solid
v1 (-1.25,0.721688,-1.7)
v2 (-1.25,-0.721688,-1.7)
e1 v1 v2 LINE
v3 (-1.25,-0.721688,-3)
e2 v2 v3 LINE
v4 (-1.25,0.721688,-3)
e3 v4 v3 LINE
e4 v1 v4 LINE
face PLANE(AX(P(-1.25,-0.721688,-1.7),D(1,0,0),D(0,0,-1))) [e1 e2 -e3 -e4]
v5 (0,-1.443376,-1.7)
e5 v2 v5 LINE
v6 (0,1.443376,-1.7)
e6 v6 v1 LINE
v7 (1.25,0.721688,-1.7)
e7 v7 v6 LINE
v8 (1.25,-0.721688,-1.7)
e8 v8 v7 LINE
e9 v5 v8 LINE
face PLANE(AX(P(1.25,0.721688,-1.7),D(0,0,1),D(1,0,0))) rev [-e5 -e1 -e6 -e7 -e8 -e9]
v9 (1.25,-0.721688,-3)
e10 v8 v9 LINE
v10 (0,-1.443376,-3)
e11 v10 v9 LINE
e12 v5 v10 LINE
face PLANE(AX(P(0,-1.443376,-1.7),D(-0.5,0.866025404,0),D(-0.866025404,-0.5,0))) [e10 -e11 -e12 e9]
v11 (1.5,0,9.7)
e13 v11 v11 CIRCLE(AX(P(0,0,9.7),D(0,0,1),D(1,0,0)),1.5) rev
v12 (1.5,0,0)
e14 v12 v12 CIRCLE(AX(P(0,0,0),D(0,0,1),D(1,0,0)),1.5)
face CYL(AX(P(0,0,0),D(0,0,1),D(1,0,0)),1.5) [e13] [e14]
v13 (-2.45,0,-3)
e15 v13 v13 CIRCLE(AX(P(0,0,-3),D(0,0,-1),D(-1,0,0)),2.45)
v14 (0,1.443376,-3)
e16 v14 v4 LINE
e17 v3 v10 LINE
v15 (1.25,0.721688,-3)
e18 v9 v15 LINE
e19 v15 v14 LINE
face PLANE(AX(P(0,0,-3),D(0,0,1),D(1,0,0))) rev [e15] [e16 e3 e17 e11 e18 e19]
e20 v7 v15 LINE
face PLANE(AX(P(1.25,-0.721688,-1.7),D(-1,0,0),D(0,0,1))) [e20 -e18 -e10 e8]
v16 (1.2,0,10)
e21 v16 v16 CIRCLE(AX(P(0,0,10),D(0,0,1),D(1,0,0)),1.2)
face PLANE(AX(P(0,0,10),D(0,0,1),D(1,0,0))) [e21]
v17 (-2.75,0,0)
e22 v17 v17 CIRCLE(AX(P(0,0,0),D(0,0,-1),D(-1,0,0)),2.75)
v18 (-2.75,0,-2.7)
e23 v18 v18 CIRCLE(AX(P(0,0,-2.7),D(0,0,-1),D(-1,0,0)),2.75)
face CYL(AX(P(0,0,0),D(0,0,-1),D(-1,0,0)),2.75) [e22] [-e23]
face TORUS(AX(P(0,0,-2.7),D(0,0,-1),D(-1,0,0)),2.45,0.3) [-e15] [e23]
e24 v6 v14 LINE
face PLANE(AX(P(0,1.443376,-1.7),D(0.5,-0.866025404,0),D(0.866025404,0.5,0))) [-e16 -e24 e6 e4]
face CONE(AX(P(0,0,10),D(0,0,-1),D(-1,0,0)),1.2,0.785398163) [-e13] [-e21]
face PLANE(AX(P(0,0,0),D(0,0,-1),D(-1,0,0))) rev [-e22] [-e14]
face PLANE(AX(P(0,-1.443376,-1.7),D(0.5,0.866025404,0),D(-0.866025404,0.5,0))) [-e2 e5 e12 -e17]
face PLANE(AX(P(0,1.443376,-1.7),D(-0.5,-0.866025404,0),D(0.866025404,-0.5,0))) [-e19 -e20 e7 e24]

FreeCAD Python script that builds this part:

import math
import FreeCAD as App
import Part
import Sketcher

V = App.Vector
Q = App.Units.Quantity


def edges_at(feature, points):
    """Names of the edges that pass closest to the given points."""
    edges = feature.Shape.Edges
    near = lambda p: min(range(len(edges)), key=lambda i: edges[i].distToShape(Part.Vertex(*p))[0])
    return sorted({f"Edge{near(p) + 1}" for p in points})

doc = App.newDocument("Part")
body = doc.addObject("PartDesign::Body", "Body")

# Sketch on XZ plane
sketch1 = doc.addObject("Sketcher::SketchObject", "Sketch")
body.addObject(sketch1)
sketch1.AttachmentSupport = (doc.XZ_Plane, [""])
sketch1.MapMode = "FlatFace"
sketch1.addGeometry([
    Part.LineSegment(V(0, 0, 0), V(2.75, 0, 0)),  # 0
    Part.LineSegment(V(2.75, 0, 0), V(2.75, -2.7, 0)),  # 1
    Part.ArcOfCircle(Part.Circle(V(2.45, -2.7, 0), V(0, 0, 1), 0.3), math.radians(-90), math.radians(0)),  # 2
    Part.LineSegment(V(2.45, -3, 0), V(0, -3, 0)),  # 3
    Part.LineSegment(V(0, -3, 0), V(0, 0, 0)),  # 4
], False)
sketch1.addConstraint([
    Sketcher.Constraint("Coincident", 0, 2, 1, 1),
    Sketcher.Constraint("Tangent", 1, 2, 2, 2),
    Sketcher.Constraint("Tangent", 2, 1, 3, 1),
    Sketcher.Constraint("Coincident", 3, 2, 4, 1),
    Sketcher.Constraint("Coincident", 4, 2, 0, 1),
    Sketcher.Constraint("Horizontal", 0),
    Sketcher.Constraint("Vertical", 1),
    Sketcher.Constraint("Horizontal", 3),
    Sketcher.Constraint("Vertical", 4),
    Sketcher.Constraint("Coincident", 4, 2, -1, 1),
    Sketcher.Constraint("Radius", 2, Q("0.3 mm")),
    Sketcher.Constraint("DistanceY", 4, 1, 4, 2, Q("3 mm")),
    Sketcher.Constraint("DistanceX", 0, 1, 0, 2, Q("2.75 mm")),
])
revolution = doc.addObject("PartDesign::Revolution", "Revolution")
body.addObject(revolution)
revolution.Profile = sketch1
revolution.ReferenceAxis = (sketch1, ["V_Axis"])
revolution.Angle = 360

# Sketch on XY plane
sketch2 = doc.addObject("Sketcher::SketchObject", "Sketch001")
body.addObject(sketch2)
sketch2.AttachmentSupport = (doc.XY_Plane, [""])
sketch2.MapMode = "FlatFace"
sketch2.AttachmentOffset = App.Placement(V(0, 0, -3), App.Rotation())
sketch2.addGeometry([
    Part.LineSegment(V(1.2, -0.7, 0), V(1.2, 0.7, 0)),  # 0
    Part.LineSegment(V(1.2, 0.7, 0), V(0, 1.4, 0)),  # 1
    Part.LineSegment(V(0, 1.4, 0), V(-1.2, 0.7, 0)),  # 2
    Part.LineSegment(V(-1.2, 0.7, 0), V(-1.2, -0.7, 0)),  # 3
    Part.LineSegment(V(-1.2, -0.7, 0), V(0, -1.4, 0)),  # 4
    Part.LineSegment(V(0, -1.4, 0), V(1.2, -0.7, 0)),  # 5
], False)
sketch2.addConstraint([
    Sketcher.Constraint("Coincident", 0, 2, 1, 1),
    Sketcher.Constraint("Coincident", 1, 2, 2, 1),
    Sketcher.Constraint("Coincident", 2, 2, 3, 1),
    Sketcher.Constraint("Coincident", 3, 2, 4, 1),
    Sketcher.Constraint("Coincident", 4, 2, 5, 1),
    Sketcher.Constraint("Coincident", 5, 2, 0, 1),
    Sketcher.Constraint("Vertical", 0),
    Sketcher.Constraint("Vertical", 3),
    Sketcher.Constraint("Symmetric", 0, 2, 3, 2, -1, 1),
    Sketcher.Constraint("Symmetric", 1, 2, 4, 2, -1, 1),
    Sketcher.Constraint("PointOnObject", 1, 2, -2),
    Sketcher.Constraint("Parallel", 2, 5),
    Sketcher.Constraint("Horizontal", 0, 2, 2, 2),
    Sketcher.Constraint("Angle", 1, Q("150 deg")),
    Sketcher.Constraint("DistanceX", 2, 2, 0, 2, Q("2.5 mm")),
    Sketcher.Constraint("DistanceY", 0, 1, 0, 2, Q("1.443376 mm")),
])
pocket1 = doc.addObject("PartDesign::Pocket", "Pocket")
body.addObject(pocket1)
pocket1.Profile = sketch2
pocket1.Length = 1.3
pocket1.Reversed = True

# Sketch on XZ plane
sketch3 = doc.addObject("Sketcher::SketchObject", "Sketch002")
body.addObject(sketch3)
sketch3.AttachmentSupport = (doc.XZ_Plane, [""])
sketch3.MapMode = "FlatFace"
sketch3.addGeometry([
    Part.LineSegment(V(0, 0, 0), V(0, 10, 0)),
    Part.LineSegment(V(0, 10, 0), V(1.5, 10, 0)),
    Part.LineSegment(V(1.5, 10, 0), V(1.5, 0, 0)),
    Part.LineSegment(V(1.5, 0, 0), V(0, 0, 0)),
], False)
sketch3.addConstraint([
    Sketcher.Constraint("Coincident", 0, 2, 1, 1),
    Sketcher.Constraint("Coincident", 1, 2, 2, 1),
    Sketcher.Constraint("Coincident", 2, 2, 3, 1),
    Sketcher.Constraint("Coincident", 3, 2, 0, 1),
    Sketcher.Constraint("Vertical", 0),
    Sketcher.Constraint("Horizontal", 1),
    Sketcher.Constraint("Vertical", 2),
    Sketcher.Constraint("Horizontal", 3),
    Sketcher.Constraint("Coincident", 3, 2, -1, 1),
    Sketcher.Constraint("DistanceY", 0, 1, 0, 2, Q("10 mm")),
    Sketcher.Constraint("DistanceX", 1, 1, 1, 2, Q("1.5 mm")),
])
revolution2 = doc.addObject("PartDesign::Revolution", "Revolution001")
body.addObject(revolution2)
revolution2.Profile = sketch3
revolution2.ReferenceAxis = (sketch3, ["V_Axis"])
revolution2.Angle = 360
doc.recompute()

chamfer = doc.addObject("PartDesign::Chamfer", "Chamfer")
body.addObject(chamfer)
chamfer.Base = (revolution2, edges_at(revolution2, [(-1.5, 0, 10)]))
chamfer.Size = 0.3

doc.recompute()
